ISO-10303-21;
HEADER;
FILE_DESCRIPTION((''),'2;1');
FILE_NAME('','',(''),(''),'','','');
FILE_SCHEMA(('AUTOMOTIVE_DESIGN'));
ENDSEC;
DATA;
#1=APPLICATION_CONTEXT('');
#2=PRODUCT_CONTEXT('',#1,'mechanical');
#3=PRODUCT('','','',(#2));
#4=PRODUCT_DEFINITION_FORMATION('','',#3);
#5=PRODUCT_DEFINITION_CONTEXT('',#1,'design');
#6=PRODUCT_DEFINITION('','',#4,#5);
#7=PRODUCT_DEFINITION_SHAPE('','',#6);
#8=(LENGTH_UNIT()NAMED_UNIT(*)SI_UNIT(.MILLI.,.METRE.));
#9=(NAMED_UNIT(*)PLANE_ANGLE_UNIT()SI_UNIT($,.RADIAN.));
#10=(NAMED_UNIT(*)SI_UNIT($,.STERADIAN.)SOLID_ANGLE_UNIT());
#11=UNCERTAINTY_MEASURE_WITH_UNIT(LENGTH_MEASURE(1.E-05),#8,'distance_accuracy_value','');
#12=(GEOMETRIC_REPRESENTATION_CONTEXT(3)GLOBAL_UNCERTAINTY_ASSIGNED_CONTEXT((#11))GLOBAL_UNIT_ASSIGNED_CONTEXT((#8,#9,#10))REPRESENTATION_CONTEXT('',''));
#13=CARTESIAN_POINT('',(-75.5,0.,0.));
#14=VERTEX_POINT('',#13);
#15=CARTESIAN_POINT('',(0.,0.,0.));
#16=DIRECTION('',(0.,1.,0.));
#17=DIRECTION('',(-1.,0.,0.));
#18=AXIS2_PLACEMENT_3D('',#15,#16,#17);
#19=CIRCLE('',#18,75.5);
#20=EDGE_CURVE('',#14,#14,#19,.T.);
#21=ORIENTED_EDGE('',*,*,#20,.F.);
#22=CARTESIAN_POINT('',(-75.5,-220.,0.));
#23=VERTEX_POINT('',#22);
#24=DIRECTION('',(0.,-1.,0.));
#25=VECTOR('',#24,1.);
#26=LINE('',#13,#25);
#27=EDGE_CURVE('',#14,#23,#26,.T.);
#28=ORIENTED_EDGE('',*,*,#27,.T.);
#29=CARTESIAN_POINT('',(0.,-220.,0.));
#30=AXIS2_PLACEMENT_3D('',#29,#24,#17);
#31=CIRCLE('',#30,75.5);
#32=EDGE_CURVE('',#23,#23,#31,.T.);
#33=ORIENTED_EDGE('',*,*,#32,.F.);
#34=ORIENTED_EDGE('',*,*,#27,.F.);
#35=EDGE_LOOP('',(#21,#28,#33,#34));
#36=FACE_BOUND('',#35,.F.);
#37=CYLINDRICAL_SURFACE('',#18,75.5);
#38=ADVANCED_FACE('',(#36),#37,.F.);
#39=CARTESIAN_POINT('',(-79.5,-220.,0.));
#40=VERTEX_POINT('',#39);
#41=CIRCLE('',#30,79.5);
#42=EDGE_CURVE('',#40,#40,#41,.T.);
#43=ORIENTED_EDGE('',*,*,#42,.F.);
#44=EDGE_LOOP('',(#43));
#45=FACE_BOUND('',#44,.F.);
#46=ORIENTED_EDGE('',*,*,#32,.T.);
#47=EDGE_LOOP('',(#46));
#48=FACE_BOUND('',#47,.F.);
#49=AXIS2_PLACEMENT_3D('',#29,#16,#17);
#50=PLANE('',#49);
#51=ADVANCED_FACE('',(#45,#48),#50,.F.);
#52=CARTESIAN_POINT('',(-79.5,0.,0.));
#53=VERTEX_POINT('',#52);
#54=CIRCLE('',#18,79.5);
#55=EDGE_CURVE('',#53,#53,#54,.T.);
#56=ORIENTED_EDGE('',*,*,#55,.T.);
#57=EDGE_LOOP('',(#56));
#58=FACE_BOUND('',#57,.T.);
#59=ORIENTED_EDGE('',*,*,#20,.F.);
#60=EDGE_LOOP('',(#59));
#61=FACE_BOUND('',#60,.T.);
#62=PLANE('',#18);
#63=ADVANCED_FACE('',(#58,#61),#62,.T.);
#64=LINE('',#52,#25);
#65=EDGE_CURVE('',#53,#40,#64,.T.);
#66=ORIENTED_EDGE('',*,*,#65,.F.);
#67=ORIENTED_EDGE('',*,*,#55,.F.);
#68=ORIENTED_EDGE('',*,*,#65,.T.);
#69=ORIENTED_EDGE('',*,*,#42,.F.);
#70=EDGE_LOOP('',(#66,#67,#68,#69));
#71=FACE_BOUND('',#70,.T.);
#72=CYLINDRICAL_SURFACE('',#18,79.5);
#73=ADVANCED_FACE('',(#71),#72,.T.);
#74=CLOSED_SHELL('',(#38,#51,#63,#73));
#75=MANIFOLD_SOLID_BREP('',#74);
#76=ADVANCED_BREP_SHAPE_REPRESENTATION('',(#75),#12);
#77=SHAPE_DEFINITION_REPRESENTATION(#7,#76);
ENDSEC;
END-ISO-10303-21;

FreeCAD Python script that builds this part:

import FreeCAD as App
import Part
import Sketcher

V = App.Vector
Q = App.Units.Quantity

doc = App.newDocument("Part")
params = doc.addObject("Spreadsheet::Sheet", "Params")
for row, (alias, value) in enumerate([
    ("sketch1_diameter", "159 mm"),
    ("sketch1_diameter2", "151 mm"),
    ("pad1_length", "220 mm"),
], start=1):
    params.set(f"A{row}", alias)
    params.set(f"B{row}", "=" + value)
    params.setAlias(f"B{row}", alias)

body = doc.addObject("PartDesign::Body", "Body")

sketch1 = body.newObject("Sketcher::SketchObject", "Sketch")
sketch1.AttachmentSupport = (doc.getObject("XZ_Plane"), [""])
sketch1.MapMode = "FlatFace"
sketch1.addGeometry([
    Part.Circle(V(0, 0, 0), V(0, 0, 1), 80),
    Part.Circle(V(0, 0, 0), V(0, 0, 1), 76),
], False)
sketch1.addConstraint([
    Sketcher.Constraint("Coincident", 0, 3, -1, 1),
    Sketcher.Constraint("Coincident", 1, 3, -1, 1),
    Sketcher.Constraint("Diameter", 0, Q("159 mm")),
    Sketcher.Constraint("Diameter", 1, Q("151 mm")),
])
sketch1.setExpression("Constraints[2]", "Params.sketch1_diameter")
sketch1.setExpression("Constraints[3]", "Params.sketch1_diameter2")
pad1 = body.newObject("PartDesign::Pad", "Pad")
pad1.Profile = sketch1
pad1.setExpression("Length", "Params.pad1_length")

doc.recompute()
